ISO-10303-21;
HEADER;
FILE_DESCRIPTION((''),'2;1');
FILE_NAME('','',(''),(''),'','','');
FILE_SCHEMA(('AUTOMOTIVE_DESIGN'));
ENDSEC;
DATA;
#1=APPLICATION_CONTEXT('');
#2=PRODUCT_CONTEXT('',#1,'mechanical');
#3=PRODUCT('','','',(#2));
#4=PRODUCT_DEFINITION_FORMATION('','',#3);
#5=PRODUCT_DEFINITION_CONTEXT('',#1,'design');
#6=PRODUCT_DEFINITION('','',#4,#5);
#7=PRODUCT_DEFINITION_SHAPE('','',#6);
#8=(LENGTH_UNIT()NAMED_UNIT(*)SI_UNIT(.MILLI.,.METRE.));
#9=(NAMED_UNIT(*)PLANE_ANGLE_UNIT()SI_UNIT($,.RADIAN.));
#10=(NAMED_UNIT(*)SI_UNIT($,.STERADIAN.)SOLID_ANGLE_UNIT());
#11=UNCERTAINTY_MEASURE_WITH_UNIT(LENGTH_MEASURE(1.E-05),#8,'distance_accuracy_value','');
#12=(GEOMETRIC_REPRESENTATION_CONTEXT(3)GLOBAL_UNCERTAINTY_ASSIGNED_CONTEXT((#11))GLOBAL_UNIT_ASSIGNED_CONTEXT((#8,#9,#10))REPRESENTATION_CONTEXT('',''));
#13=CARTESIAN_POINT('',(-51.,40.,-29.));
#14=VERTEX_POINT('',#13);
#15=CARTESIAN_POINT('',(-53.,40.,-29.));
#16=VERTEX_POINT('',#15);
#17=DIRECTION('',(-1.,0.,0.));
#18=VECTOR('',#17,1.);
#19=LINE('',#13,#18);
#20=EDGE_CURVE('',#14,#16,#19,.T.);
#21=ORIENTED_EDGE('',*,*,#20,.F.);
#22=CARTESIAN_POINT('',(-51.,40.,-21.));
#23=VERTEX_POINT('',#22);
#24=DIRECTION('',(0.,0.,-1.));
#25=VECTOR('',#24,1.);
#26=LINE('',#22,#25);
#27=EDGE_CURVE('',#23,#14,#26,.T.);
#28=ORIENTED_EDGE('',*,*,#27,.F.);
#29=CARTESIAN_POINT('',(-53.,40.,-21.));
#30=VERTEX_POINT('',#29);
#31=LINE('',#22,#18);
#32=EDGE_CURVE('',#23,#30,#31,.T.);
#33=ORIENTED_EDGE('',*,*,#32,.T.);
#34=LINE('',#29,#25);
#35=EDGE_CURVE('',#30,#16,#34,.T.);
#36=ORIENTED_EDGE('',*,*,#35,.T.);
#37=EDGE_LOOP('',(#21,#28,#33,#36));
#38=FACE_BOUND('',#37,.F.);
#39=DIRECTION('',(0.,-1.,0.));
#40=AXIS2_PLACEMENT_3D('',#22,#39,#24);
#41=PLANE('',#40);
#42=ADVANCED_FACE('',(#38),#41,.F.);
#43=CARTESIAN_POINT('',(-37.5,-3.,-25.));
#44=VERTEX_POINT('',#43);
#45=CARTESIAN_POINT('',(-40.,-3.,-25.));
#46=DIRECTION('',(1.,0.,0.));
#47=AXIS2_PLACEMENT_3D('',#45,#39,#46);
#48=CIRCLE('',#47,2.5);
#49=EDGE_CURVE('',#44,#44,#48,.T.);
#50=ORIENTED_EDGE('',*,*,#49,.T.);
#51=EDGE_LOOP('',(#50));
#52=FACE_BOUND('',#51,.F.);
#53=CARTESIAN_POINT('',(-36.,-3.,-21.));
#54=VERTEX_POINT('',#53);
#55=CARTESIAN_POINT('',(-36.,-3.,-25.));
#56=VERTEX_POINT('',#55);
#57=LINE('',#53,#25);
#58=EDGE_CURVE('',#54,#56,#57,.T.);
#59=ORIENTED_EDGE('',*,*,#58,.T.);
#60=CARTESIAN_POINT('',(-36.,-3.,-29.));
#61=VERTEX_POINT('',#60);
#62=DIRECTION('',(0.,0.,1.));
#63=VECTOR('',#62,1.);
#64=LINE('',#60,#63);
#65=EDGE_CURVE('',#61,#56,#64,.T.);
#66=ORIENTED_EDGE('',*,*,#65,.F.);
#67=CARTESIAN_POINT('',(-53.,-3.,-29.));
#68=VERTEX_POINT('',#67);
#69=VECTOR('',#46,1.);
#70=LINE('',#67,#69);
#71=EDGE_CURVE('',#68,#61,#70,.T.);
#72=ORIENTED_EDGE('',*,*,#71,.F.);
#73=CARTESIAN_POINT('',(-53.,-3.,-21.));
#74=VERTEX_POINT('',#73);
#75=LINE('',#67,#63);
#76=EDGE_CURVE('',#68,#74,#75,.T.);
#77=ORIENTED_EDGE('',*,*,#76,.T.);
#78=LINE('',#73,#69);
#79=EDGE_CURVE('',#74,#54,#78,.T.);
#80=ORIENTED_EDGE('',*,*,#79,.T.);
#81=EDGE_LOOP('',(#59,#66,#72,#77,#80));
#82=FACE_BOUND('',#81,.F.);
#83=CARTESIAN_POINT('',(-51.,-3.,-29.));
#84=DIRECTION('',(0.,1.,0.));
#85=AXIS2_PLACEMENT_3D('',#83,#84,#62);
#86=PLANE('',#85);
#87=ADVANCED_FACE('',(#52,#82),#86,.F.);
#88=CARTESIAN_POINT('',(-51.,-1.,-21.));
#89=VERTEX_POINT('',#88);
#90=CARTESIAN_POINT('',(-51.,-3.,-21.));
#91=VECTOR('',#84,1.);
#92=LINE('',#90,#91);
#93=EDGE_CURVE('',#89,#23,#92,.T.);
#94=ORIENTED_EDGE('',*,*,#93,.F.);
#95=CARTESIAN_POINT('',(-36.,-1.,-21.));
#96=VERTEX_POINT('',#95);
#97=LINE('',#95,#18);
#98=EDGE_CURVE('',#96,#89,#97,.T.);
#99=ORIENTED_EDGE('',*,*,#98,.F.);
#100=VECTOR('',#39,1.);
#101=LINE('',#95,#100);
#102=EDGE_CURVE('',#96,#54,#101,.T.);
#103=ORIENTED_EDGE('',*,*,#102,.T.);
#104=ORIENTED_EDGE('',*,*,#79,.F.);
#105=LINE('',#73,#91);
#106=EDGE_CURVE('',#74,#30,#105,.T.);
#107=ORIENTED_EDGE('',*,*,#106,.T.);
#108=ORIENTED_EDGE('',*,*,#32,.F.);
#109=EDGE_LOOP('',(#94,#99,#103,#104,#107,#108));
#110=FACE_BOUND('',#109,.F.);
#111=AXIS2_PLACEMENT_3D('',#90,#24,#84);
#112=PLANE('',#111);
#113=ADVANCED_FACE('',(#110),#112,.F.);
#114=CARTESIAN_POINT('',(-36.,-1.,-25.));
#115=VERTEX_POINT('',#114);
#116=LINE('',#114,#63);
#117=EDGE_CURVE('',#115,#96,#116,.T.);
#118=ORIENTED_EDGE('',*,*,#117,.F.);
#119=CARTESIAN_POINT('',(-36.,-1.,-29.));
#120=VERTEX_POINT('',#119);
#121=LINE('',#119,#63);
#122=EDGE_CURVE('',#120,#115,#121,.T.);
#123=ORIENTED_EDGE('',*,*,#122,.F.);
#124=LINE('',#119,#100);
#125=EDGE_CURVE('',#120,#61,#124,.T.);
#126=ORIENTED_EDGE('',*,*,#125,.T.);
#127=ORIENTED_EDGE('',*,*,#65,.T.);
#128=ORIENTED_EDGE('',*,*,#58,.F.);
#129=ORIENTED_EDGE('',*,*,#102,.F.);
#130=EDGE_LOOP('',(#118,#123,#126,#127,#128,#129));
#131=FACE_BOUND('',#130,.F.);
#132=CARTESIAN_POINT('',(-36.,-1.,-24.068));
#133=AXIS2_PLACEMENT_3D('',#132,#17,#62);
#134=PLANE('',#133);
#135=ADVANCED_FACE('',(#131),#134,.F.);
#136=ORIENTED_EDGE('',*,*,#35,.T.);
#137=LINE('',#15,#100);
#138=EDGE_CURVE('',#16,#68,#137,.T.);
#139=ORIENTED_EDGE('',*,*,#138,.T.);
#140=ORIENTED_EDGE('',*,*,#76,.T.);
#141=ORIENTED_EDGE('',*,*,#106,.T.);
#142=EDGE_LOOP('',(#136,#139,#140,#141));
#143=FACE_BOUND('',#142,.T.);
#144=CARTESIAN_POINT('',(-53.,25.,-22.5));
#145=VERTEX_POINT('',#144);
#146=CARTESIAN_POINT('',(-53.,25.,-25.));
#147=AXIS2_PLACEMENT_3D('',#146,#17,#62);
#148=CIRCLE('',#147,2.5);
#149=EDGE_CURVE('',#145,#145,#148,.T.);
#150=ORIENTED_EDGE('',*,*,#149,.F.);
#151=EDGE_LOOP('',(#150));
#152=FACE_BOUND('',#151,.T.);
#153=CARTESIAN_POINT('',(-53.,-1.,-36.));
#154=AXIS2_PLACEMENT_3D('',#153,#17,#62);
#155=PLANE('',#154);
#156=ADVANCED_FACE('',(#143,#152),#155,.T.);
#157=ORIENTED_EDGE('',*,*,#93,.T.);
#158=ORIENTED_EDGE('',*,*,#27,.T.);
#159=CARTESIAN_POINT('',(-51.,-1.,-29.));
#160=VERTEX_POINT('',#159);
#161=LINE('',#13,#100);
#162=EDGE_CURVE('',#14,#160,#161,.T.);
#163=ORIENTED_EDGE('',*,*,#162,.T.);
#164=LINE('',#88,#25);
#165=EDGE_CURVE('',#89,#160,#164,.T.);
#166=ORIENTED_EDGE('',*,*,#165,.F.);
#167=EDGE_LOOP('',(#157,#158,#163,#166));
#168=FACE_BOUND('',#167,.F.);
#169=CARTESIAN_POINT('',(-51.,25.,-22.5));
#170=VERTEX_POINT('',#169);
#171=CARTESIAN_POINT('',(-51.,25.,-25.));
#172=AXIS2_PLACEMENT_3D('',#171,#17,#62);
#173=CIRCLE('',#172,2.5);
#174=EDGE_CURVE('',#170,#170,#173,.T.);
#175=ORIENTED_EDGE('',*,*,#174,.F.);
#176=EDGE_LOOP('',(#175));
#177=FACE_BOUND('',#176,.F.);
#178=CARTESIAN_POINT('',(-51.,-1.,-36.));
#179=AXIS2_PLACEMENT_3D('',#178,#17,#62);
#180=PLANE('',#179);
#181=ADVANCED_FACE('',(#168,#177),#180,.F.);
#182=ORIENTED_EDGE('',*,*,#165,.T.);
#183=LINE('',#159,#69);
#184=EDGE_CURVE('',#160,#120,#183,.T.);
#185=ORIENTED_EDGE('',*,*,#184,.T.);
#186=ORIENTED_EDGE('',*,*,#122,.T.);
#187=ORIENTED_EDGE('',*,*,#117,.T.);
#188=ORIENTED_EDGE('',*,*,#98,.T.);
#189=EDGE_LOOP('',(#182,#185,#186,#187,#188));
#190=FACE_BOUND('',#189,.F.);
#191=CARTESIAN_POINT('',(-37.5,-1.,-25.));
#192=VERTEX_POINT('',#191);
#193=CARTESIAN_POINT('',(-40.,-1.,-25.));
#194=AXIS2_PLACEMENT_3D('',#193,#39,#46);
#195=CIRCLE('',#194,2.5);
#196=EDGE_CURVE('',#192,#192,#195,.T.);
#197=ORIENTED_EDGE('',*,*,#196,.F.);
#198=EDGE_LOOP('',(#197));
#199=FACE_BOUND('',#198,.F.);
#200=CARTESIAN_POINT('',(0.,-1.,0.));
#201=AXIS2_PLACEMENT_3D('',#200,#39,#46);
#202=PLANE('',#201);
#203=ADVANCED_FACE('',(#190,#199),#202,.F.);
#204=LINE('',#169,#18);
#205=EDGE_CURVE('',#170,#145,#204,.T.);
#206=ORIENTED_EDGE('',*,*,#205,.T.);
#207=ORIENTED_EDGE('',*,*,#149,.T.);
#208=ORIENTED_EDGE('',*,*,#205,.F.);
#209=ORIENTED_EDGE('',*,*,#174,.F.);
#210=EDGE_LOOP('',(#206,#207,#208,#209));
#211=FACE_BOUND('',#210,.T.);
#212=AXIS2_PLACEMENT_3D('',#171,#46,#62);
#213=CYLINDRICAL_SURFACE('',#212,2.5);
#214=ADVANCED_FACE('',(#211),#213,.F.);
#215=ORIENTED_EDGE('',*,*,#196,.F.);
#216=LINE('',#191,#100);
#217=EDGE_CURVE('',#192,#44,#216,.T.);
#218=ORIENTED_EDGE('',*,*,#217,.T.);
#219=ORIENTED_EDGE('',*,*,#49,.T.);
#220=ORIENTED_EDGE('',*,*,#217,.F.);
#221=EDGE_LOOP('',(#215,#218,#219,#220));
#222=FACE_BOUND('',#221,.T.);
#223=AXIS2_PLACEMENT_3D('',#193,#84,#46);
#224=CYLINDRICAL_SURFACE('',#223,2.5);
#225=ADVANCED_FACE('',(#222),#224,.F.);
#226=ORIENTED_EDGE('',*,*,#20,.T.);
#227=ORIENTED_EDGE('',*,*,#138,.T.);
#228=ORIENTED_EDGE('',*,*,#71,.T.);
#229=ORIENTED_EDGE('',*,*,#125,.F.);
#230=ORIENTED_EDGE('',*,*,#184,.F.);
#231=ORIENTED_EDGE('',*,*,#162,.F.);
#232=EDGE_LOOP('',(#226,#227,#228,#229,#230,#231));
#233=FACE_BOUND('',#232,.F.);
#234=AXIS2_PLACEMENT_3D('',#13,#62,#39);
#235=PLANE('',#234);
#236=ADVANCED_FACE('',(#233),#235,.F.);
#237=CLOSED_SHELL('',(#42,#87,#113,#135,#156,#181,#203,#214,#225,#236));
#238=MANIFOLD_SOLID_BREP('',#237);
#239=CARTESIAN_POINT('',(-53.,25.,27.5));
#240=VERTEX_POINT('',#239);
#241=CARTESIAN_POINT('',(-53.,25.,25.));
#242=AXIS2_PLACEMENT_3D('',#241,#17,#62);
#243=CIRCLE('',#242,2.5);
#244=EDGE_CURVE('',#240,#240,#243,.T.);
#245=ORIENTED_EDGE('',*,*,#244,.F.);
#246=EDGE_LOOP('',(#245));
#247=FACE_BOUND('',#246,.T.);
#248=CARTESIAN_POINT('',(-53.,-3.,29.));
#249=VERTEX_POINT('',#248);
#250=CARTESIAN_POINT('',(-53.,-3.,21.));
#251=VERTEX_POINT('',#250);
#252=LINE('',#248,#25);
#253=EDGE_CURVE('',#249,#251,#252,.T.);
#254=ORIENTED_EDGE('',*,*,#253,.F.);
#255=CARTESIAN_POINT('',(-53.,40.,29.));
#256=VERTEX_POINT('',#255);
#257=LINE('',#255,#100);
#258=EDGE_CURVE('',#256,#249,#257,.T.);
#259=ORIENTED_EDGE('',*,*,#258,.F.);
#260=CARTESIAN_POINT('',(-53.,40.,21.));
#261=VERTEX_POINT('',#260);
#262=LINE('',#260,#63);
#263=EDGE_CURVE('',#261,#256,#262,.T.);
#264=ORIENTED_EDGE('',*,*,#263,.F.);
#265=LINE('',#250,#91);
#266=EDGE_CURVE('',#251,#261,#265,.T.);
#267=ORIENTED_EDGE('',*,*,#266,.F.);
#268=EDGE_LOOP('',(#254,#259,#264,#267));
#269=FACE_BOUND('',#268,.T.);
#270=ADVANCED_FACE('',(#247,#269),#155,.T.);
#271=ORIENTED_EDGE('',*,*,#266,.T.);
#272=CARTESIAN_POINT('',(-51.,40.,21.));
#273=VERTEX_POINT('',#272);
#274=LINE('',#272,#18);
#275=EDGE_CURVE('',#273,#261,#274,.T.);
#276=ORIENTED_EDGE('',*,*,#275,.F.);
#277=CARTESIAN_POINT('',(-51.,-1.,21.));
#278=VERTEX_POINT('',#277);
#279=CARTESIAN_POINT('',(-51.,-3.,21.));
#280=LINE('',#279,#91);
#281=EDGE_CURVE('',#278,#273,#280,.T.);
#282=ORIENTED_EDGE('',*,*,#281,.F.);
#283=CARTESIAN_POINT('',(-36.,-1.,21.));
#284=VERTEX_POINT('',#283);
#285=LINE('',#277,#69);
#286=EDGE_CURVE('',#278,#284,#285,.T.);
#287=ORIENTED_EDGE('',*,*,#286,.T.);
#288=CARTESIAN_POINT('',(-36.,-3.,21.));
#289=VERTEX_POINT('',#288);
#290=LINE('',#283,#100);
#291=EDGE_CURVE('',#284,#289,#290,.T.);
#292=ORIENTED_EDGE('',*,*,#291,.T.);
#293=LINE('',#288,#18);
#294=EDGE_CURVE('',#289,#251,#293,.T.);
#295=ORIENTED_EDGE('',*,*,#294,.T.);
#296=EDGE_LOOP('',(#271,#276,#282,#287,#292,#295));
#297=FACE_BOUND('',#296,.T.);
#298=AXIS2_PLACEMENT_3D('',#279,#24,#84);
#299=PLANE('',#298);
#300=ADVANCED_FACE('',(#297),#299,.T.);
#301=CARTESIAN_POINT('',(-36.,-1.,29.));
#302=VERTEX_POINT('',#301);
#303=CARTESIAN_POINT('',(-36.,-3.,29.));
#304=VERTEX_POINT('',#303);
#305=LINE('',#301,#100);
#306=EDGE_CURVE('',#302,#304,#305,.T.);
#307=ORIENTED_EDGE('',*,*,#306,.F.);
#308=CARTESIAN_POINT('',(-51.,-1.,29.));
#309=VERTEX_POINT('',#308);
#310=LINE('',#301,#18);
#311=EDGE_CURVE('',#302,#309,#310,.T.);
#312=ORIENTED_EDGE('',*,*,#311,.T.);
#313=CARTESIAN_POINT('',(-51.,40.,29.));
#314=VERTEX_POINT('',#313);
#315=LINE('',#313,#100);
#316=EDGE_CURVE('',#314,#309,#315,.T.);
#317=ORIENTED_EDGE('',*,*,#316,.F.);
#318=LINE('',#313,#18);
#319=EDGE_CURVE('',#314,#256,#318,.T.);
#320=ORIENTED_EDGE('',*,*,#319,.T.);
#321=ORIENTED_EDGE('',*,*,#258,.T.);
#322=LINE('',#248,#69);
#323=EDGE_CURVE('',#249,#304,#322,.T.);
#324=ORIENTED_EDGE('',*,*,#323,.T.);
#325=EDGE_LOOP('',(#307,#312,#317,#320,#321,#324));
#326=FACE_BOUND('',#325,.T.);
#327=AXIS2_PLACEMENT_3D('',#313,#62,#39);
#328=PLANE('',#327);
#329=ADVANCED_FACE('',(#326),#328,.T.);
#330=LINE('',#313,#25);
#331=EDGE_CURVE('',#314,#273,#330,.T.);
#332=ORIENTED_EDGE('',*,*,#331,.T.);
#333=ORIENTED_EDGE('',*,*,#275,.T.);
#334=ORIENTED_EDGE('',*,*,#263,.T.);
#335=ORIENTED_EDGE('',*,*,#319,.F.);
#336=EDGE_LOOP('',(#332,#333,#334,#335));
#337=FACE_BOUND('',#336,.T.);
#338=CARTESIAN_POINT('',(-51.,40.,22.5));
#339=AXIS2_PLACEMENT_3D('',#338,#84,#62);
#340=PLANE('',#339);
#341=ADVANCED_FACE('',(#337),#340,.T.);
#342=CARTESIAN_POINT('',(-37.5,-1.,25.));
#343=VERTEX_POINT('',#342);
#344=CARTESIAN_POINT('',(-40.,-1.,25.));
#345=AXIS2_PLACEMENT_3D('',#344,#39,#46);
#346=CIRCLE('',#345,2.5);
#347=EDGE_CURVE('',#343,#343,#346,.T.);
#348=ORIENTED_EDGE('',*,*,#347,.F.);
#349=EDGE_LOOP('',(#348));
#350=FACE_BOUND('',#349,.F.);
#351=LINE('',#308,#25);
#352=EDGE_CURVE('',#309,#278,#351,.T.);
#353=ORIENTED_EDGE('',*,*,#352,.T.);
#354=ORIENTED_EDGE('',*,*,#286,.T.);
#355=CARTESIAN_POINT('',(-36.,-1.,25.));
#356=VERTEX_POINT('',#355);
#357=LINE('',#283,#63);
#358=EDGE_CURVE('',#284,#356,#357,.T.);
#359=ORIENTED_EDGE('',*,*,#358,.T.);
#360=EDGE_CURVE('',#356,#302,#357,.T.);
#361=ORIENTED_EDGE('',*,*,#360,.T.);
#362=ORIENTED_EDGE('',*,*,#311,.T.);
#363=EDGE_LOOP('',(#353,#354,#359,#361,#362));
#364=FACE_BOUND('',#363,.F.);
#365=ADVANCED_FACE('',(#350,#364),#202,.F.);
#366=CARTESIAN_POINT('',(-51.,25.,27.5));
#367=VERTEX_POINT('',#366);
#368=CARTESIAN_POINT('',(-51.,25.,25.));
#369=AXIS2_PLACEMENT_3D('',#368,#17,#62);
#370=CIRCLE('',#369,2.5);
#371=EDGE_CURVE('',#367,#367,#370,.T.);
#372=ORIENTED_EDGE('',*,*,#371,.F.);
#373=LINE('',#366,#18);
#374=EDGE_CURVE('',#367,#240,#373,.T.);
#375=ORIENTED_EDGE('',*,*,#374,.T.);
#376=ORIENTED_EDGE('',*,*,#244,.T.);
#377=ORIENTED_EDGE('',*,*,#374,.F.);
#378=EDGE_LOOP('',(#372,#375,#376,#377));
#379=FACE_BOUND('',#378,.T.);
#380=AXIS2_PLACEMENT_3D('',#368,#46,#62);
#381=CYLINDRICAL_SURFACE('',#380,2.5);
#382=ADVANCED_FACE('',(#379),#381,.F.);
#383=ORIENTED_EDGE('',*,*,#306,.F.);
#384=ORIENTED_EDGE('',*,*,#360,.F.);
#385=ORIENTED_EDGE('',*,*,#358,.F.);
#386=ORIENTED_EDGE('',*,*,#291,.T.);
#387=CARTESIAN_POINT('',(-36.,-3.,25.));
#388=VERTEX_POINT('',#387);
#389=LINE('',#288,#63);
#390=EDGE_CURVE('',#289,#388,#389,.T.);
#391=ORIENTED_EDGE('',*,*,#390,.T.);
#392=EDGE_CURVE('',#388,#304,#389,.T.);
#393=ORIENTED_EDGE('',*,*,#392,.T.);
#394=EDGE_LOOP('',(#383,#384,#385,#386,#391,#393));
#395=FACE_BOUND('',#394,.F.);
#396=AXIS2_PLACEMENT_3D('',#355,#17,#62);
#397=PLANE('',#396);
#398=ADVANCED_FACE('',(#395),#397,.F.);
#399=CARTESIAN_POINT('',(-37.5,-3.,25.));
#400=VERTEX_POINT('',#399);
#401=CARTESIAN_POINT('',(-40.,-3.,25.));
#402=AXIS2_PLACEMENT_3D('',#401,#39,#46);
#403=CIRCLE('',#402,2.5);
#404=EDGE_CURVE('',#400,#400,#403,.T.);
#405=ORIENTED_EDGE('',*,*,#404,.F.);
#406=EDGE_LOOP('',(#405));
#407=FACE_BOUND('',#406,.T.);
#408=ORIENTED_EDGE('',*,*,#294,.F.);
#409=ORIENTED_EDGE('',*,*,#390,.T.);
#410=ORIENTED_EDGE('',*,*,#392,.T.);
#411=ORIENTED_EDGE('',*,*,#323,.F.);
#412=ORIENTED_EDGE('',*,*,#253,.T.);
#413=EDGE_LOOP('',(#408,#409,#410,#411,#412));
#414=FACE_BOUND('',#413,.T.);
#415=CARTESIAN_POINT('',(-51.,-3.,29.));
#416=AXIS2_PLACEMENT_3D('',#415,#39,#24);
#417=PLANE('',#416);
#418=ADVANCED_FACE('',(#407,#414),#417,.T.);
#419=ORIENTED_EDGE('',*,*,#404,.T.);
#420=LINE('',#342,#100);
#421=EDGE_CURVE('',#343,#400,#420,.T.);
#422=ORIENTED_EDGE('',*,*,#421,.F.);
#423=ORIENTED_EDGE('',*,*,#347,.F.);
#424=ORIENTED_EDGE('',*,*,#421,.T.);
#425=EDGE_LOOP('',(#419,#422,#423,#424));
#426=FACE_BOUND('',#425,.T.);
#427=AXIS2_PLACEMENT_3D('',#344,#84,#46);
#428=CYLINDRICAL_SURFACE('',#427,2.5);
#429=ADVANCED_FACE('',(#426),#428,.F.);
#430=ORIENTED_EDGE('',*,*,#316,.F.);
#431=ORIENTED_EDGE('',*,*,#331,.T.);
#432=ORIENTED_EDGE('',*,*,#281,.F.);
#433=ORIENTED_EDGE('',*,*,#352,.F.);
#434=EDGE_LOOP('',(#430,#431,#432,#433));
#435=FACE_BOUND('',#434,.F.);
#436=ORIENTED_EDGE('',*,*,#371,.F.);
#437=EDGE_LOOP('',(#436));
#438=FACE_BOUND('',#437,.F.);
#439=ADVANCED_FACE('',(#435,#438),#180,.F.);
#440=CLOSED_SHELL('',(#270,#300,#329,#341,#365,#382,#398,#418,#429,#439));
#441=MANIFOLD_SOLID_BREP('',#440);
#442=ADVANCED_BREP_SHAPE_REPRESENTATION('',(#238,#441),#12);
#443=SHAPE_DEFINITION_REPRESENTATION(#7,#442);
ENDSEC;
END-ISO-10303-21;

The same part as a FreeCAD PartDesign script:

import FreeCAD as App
import Part
import Sketcher
Q = App.Units.Quantity


def add_polygon(sketch, points):
    """Adds a closed chain of lines whose ends are joined by coincident constraints."""
    first, n = sketch.GeometryCount, len(points)
    for a, b in zip(points, points[1:] + points[:1]):
        sketch.addGeometry(Part.LineSegment(App.Vector(*a, 0), App.Vector(*b, 0)), False)
    for i in range(n):
        sketch.addConstraint(Sketcher.Constraint("Coincident", first + i, 2, first + (i + 1) % n, 1))

doc = App.newDocument("Part")
params = doc.addObject("Spreadsheet::Sheet", "Params")
for row, (alias, value) in enumerate([
    ("sketch1_width", "43 mm"),
    ("sketch1_height", "8 mm"),
    ("sketch1_diameter", "5 mm"),
    ("pad1_length", "2 mm"),
    ("sketch2_width", "15 mm"),
    ("sketch2_height", "8 mm"),
    ("sketch2_diameter", "5 mm"),
    ("pad2_length", "2 mm"),
], start=1):
    params.set(f"A{row}", alias)
    params.set(f"B{row}", "=" + value)
    params.setAlias(f"B{row}", alias)

body = doc.addObject("PartDesign::Body", "Body")
body.AllowCompound = True

# Sketch on YZ plane
sketch1 = body.newObject("Sketcher::SketchObject", "Sketch")
sketch1.AttachmentSupport = (doc.getObject("YZ_Plane"), [""])
sketch1.MapMode = "FlatFace"
sketch1.AttachmentOffset = App.Placement(App.Vector(0, 0, -51), App.Rotation())
add_polygon(sketch1, [(40, 29), (40, 21), (-3, 21), (-3, 29)])  # lines 0-3
sketch1.addGeometry(Part.Circle(App.Vector(25, 25, 0), App.Vector(0, 0, 1), 2.5), False)  # 4
add_polygon(sketch1, [(-3, -21), (40, -21), (40, -29), (-3, -29)])  # lines 5-8
sketch1.addGeometry(Part.Circle(App.Vector(25, -25, 0), App.Vector(0, 0, 1), 2.5), False)  # 9
sketch1.addConstraint(Sketcher.Constraint("Vertical", 0))
sketch1.addConstraint(Sketcher.Constraint("Horizontal", 1))
sketch1.addConstraint(Sketcher.Constraint("Vertical", 2))
sketch1.addConstraint(Sketcher.Constraint("Horizontal", 3))
sketch1.addConstraint(Sketcher.Constraint("Horizontal", 5))
sketch1.addConstraint(Sketcher.Constraint("Vertical", 6))
sketch1.addConstraint(Sketcher.Constraint("Horizontal", 7))
sketch1.addConstraint(Sketcher.Constraint("Vertical", 8))
sketch1.addConstraint(Sketcher.Constraint("Equal", 4, 9))
sketch1.addConstraint(Sketcher.Constraint("Symmetric", 4, 3, 9, 3, -1))
sketch1.addConstraint(Sketcher.Constraint("Symmetric", 0, 2, 5, 2, -1))
sketch1.addConstraint(Sketcher.Constraint("Symmetric", 2, 2, 7, 2, -1))
sketch1.addConstraint(Sketcher.Constraint("DistanceX", 1, 2, 1, 1, Q("43 mm")))
sketch1.addConstraint(Sketcher.Constraint("DistanceY", 0, 2, 0, 1, Q("8 mm")))
sketch1.addConstraint(Sketcher.Constraint("Diameter", 4, Q("5 mm")))
sketch1.addConstraint(Sketcher.Constraint("DistanceY", 9, 3, 4, 3, Q("50 mm")))
sketch1.addConstraint(Sketcher.Constraint("DistanceY", 5, 2, 0, 2, Q("42 mm")))
sketch1.addConstraint(Sketcher.Constraint("DistanceX", -1, 1, 4, 3, Q("25 mm")))
sketch1.addConstraint(Sketcher.Constraint("DistanceX", -1, 1, 0, 2, Q("40 mm")))
sketch1.setExpression("Constraints[20]", "Params.sketch1_width")
sketch1.setExpression("Constraints[21]", "Params.sketch1_height")
sketch1.setExpression("Constraints[22]", "Params.sketch1_diameter")
pad1 = body.newObject("PartDesign::Pad", "Pad")
pad1.Profile = sketch1
pad1.setExpression("Length", "Params.pad1_length")
pad1.Reversed = True

# Sketch on XZ plane
sketch2 = body.newObject("Sketcher::SketchObject", "Sketch001")
sketch2.AttachmentSupport = (doc.getObject("XZ_Plane"), [""])
sketch2.MapMode = "FlatFace"
sketch2.AttachmentOffset = App.Placement(App.Vector(0, 0, 1), App.Rotation())
add_polygon(sketch2, [(-51, -21), (-51, -29), (-36, -29), (-36, -25), (-36, -21)])  # lines 0-4
sketch2.addGeometry(Part.Circle(App.Vector(-40, -25, 0), App.Vector(0, 0, 1), 2.5), False)  # 5
add_polygon(sketch2, [(-36, 21), (-36, 25), (-36, 29), (-51, 29), (-51, 21)])  # lines 6-10
sketch2.addGeometry(Part.Circle(App.Vector(-40, 25, 0), App.Vector(0, 0, 1), 2.5), False)  # 11
sketch2.addConstraint(Sketcher.Constraint("Vertical", 0))
sketch2.addConstraint(Sketcher.Constraint("Horizontal", 1))
sketch2.addConstraint(Sketcher.Constraint("Vertical", 2))
sketch2.addConstraint(Sketcher.Constraint("Vertical", 3))
sketch2.addConstraint(Sketcher.Constraint("Horizontal", 4))
sketch2.addConstraint(Sketcher.Constraint("Vertical", 6))
sketch2.addConstraint(Sketcher.Constraint("Vertical", 7))
sketch2.addConstraint(Sketcher.Constraint("Horizontal", 8))
sketch2.addConstraint(Sketcher.Constraint("Vertical", 9))
sketch2.addConstraint(Sketcher.Constraint("Horizontal", 10))
sketch2.addConstraint(Sketcher.Constraint("Equal", 5, 11))
sketch2.addConstraint(Sketcher.Constraint("Symmetric", 5, 3, 11, 3, -1))
sketch2.addConstraint(Sketcher.Constraint("Symmetric", 2, 2, 6, 2, -1))
sketch2.addConstraint(Sketcher.Constraint("Symmetric", 0, 2, 8, 2, -1))
sketch2.addConstraint(Sketcher.Constraint("Horizontal", 5, 3, 2, 2))
sketch2.addConstraint(Sketcher.Constraint("Equal", 2, 3))
sketch2.addConstraint(Sketcher.Constraint("Equal", 3, 6))
sketch2.addConstraint(Sketcher.Constraint("DistanceX", 1, 1, 1, 2, Q("15 mm")))
sketch2.addConstraint(Sketcher.Constraint("DistanceY", 0, 2, 0, 1, Q("8 mm")))
sketch2.addConstraint(Sketcher.Constraint("Diameter", 5, Q("5 mm")))
sketch2.addConstraint(Sketcher.Constraint("DistanceX", 5, 3, 1, 2, Q("4 mm")))
sketch2.addConstraint(Sketcher.Constraint("DistanceX", 5, 3, -1, 1, Q("40 mm")))
sketch2.addConstraint(Sketcher.Constraint("DistanceY", 5, 3, -1, 1, Q("25 mm")))
sketch2.setExpression("Constraints[27]", "Params.sketch2_width")
sketch2.setExpression("Constraints[28]", "Params.sketch2_height")
sketch2.setExpression("Constraints[29]", "Params.sketch2_diameter")
pad2 = body.newObject("PartDesign::Pad", "Pad001")
pad2.Profile = sketch2
pad2.setExpression("Length", "Params.pad2_length")

doc.recompute()
